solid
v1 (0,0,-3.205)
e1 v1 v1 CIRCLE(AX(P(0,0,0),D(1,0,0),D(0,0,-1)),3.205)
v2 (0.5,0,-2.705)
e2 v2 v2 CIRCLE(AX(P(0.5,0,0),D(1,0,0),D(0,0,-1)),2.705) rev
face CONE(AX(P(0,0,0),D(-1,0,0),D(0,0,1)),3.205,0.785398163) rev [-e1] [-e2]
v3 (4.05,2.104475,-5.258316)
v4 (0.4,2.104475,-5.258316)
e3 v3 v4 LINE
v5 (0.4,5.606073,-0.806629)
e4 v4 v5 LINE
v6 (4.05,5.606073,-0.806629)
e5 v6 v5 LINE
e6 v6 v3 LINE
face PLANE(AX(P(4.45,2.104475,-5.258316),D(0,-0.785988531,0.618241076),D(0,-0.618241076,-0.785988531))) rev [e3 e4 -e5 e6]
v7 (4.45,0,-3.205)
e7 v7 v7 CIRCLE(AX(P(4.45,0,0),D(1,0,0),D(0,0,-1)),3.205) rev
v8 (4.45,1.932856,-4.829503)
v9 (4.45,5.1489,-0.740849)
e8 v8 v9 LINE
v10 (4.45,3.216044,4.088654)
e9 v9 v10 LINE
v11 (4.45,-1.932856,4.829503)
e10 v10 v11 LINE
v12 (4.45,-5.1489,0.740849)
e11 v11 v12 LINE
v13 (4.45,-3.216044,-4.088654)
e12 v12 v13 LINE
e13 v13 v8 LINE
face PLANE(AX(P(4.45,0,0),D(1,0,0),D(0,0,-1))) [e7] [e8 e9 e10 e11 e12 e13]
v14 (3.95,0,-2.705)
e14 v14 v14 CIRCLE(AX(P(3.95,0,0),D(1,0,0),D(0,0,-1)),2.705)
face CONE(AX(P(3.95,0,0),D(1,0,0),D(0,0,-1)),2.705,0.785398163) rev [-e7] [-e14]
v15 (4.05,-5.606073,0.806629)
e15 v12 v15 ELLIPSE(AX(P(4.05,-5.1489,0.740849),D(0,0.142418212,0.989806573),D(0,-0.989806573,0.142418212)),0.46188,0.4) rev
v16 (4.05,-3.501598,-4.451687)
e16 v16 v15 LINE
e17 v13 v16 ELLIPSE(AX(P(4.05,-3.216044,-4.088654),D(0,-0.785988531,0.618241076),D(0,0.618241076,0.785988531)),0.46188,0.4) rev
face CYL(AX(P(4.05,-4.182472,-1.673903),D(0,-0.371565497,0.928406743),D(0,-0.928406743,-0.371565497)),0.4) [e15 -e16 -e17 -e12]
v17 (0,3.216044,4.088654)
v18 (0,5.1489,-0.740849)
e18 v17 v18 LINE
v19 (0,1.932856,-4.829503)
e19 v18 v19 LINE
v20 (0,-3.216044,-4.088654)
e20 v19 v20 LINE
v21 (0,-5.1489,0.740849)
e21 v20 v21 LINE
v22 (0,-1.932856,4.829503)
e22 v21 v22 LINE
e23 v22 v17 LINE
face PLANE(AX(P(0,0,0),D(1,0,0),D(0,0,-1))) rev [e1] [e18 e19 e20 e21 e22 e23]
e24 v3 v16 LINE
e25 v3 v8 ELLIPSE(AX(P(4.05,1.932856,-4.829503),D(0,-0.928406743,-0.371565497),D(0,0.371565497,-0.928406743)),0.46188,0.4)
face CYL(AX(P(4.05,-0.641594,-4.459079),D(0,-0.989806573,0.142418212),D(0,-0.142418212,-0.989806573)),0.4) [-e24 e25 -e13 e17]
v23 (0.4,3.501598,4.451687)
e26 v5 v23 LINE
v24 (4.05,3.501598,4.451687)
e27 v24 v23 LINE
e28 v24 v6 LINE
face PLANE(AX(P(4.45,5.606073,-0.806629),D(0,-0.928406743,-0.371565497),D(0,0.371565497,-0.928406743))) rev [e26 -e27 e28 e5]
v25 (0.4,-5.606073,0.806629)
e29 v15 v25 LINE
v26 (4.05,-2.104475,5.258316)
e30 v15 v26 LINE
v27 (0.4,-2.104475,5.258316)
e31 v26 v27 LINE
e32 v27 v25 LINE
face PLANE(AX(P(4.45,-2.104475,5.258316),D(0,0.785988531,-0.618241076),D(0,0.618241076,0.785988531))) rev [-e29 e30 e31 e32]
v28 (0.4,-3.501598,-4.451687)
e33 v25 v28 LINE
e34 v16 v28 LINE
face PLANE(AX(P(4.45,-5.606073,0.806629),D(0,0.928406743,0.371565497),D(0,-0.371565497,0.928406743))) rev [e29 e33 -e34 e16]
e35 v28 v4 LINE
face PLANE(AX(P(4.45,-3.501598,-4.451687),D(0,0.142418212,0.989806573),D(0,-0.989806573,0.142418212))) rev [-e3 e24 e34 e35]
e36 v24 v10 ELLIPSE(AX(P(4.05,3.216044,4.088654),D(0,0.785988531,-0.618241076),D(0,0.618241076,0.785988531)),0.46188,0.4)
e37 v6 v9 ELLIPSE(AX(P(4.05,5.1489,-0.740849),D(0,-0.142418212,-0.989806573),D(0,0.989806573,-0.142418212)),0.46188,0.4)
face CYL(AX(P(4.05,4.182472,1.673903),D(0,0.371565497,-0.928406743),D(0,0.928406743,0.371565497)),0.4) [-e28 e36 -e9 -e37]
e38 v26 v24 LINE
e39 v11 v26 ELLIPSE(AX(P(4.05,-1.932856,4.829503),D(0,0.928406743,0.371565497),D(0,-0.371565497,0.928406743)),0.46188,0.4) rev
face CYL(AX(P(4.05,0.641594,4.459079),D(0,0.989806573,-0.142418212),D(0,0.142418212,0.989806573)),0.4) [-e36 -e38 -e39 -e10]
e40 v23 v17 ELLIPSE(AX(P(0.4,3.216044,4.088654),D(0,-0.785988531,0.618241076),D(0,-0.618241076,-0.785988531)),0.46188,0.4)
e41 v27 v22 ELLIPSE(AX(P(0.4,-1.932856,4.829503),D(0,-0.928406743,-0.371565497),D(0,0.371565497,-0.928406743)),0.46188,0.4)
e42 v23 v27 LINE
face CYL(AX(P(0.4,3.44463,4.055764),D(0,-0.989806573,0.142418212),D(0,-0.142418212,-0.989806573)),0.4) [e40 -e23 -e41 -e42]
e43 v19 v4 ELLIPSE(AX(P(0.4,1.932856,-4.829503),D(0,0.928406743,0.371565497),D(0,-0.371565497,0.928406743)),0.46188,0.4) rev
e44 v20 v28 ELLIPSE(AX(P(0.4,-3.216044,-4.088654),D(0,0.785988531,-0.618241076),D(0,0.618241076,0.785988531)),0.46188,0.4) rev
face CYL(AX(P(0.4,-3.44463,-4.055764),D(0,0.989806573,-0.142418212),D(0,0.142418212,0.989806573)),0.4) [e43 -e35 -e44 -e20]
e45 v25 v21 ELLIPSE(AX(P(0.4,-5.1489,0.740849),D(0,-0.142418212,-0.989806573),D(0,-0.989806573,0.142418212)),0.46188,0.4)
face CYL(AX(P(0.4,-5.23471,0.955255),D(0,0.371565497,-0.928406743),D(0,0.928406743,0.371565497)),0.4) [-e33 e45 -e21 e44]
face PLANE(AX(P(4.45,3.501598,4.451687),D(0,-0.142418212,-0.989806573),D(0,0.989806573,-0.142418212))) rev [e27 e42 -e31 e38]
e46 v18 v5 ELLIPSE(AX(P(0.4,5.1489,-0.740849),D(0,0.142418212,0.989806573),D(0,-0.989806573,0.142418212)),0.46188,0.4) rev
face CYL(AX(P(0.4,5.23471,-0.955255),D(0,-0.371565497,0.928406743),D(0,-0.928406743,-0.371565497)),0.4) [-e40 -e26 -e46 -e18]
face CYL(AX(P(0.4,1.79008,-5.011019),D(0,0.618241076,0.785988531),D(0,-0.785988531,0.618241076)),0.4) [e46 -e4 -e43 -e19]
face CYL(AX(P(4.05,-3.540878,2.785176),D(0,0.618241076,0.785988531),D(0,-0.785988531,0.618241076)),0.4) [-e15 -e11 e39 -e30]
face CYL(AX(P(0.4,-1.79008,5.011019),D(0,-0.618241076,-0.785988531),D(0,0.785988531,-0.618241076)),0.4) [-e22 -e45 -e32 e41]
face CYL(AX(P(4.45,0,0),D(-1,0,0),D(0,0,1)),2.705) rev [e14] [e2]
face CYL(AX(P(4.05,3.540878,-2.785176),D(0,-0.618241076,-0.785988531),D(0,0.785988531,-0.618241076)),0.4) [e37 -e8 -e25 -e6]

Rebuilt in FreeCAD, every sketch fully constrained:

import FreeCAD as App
import Part
import Sketcher

V = App.Vector


def edges_at(feature, points):
    """Names of the edges that pass closest to the given points."""
    edges = feature.Shape.Edges
    near = lambda p: min(range(len(edges)), key=lambda i: edges[i].distToShape(Part.Vertex(*p))[0])
    return sorted({f"Edge{near(p) + 1}" for p in points})

doc = App.newDocument("Part")
body = doc.addObject("PartDesign::Body", "Body")

sketch1 = body.newObject("Sketcher::SketchObject", "Sketch")
sketch1.AttachmentSupport = (doc.getObject("YZ_Plane"), [""])
sketch1.MapMode = "FlatFace"
sketch1.addGeometry(Part.LineSegment(V(5.6, -0.8, 0), V(3.5, 4.5, 0)), False)
sketch1.addGeometry(Part.LineSegment(V(3.5, 4.5, 0), V(-2.1, 5.3, 0)), False)
sketch1.addGeometry(Part.LineSegment(V(-2.1, 5.3, 0), V(-5.6, 0.8, 0)), False)
sketch1.addGeometry(Part.LineSegment(V(-5.6, 0.8, 0), V(-3.5, -4.5, 0)), False)
sketch1.addGeometry(Part.LineSegment(V(-3.5, -4.5, 0), V(2.1, -5.3, 0)), False)
sketch1.addGeometry(Part.LineSegment(V(2.1, -5.3, 0), V(5.6, -0.8, 0)), False)
sketch1.addGeometry(Part.Circle(V(0, 0, 0), V(0, 0, 1), 2.7), False)
sketch1.addConstraint(Sketcher.Constraint("Coincident", 0, 2, 1, 1))
sketch1.addConstraint(Sketcher.Constraint("Coincident", 1, 2, 2, 1))
sketch1.addConstraint(Sketcher.Constraint("Coincident", 2, 2, 3, 1))
sketch1.addConstraint(Sketcher.Constraint("Coincident", 3, 2, 4, 1))
sketch1.addConstraint(Sketcher.Constraint("Coincident", 4, 2, 5, 1))
sketch1.addConstraint(Sketcher.Constraint("Coincident", 5, 2, 0, 1))
sketch1.addConstraint(Sketcher.Constraint("Coincident", 6, 3, -1, 1))
sketch1.addConstraint(Sketcher.Constraint("Symmetric", 0, 2, 3, 2, -1, 1))
sketch1.addConstraint(Sketcher.Constraint("Symmetric", 1, 2, 4, 2, -1, 1))
sketch1.addConstraint(Sketcher.Constraint("Symmetric", 2, 2, 5, 2, -1, 1))
sketch1.addConstraint(Sketcher.Constraint("Equal", 0, 1))
sketch1.addConstraint(Sketcher.Constraint("Equal", 1, 2))
sketch1.addConstraint(Sketcher.Constraint("Diameter", 6, 5.41))
sketch1.addConstraint(Sketcher.Constraint("DistanceY", -1, 1, 2, 2, 0.806629))
sketch1.addConstraint(Sketcher.Constraint("DistanceY", 0, 2, 1, 2, 0.806629))
sketch1.addConstraint(Sketcher.Constraint("DistanceX", 2, 2, 0, 2, 9.10767))
sketch1.addConstraint(Sketcher.Constraint("DistanceX", 1, 2, 4, 2, 4.20895))
pad1 = body.newObject("PartDesign::Pad", "Pad")
pad1.Profile = sketch1
pad1.Length = 4.45
doc.recompute()

chamfer = body.newObject("PartDesign::Chamfer", "Chamfer")
chamfer.Base = (pad1, edges_at(pad1, [(0, 0, 2.705), (4.45, 0, 2.705)]))
chamfer.Size = 0.5
doc.recompute()

fillet = body.newObject("PartDesign::Fillet", "Fillet")
fillet.Base = (chamfer, edges_at(chamfer, [
    (4.45, 0.699, 4.855),
    (4.45, -3.855, 3.032),
    (4.45, -4.554, -1.823),
    (4.45, -0.699, -4.855),
    (4.45, 3.855, -3.032),
    (0, -0.699, -4.855),
    (0, -4.554, -1.823),
    (0, -3.855, 3.032),
    (0, 0.699, 4.855),
    (0, 4.554, 1.823),
    (0, 3.855, -3.032),
    (4.45, 4.554, 1.823),
]))
fillet.Radius = 0.4

doc.recompute()
